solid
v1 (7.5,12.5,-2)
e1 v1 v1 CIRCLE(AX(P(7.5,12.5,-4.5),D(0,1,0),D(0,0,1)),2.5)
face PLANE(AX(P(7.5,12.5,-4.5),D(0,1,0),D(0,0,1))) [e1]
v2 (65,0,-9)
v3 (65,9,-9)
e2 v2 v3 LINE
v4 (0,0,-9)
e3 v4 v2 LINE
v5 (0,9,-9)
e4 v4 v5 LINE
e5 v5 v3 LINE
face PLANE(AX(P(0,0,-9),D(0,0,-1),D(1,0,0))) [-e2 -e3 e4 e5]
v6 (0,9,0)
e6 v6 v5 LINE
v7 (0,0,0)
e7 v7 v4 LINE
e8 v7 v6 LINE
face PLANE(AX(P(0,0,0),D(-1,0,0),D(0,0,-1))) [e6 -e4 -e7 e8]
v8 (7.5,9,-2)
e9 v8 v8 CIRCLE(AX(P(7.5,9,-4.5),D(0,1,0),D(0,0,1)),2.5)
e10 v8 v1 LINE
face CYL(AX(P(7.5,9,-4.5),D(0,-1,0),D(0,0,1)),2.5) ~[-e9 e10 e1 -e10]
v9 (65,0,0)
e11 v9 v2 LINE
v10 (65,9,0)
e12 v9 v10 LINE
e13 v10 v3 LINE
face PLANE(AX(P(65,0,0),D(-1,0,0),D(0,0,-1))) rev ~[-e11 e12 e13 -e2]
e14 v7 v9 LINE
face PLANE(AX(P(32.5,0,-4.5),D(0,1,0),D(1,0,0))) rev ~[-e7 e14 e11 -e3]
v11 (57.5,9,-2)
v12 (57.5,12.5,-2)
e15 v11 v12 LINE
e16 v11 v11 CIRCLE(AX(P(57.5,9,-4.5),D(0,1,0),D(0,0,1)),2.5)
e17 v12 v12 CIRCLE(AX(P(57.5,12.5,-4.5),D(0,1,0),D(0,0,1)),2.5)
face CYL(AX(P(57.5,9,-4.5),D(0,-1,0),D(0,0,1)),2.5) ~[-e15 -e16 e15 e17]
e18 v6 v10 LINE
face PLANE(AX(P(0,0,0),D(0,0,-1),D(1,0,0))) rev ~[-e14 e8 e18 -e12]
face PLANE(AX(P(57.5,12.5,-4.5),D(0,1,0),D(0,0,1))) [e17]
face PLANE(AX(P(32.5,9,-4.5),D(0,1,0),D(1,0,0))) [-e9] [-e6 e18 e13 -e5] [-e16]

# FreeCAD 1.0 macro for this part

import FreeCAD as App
import Part
import Sketcher

V = App.Vector


def add_polygon(sketch, points):
    """Adds a closed chain of lines whose ends are joined by coincident constraints."""
    first, n = sketch.GeometryCount, len(points)
    for a, b in zip(points, points[1:] + points[:1]):
        sketch.addGeometry(Part.LineSegment(App.Vector(*a, 0), App.Vector(*b, 0)), False)
    for i in range(n):
        sketch.addConstraint(Sketcher.Constraint("Coincident", first + i, 2, first + (i + 1) % n, 1))

doc = App.newDocument("Part")
body = doc.addObject("PartDesign::Body", "Body")

# Sketch on XZ plane
sketch1 = body.newObject("Sketcher::SketchObject", "Sketch")
sketch1.AttachmentSupport = (doc.getObject("XZ_Plane"), [""])
sketch1.MapMode = "FlatFace"
add_polygon(sketch1, [(0, -9), (0, 0), (65, 0), (65, -9)])  # lines 0-3
sketch1.addConstraint(Sketcher.Constraint("Vertical", 0))
sketch1.addConstraint(Sketcher.Constraint("Horizontal", 1))
sketch1.addConstraint(Sketcher.Constraint("Vertical", 2))
sketch1.addConstraint(Sketcher.Constraint("Horizontal", 3))
sketch1.addConstraint(Sketcher.Constraint("Coincident", 0, 2, -1, 1))
sketch1.addConstraint(Sketcher.Constraint("DistanceX", 1, 1, 1, 2, 65.0))
sketch1.addConstraint(Sketcher.Constraint("DistanceY", 0, 1, 0, 2, 9.0))
pad1 = body.newObject("PartDesign::Pad", "Pad")
pad1.Profile = sketch1
pad1.Length = 9
pad1.Reversed = True

# Sketch on XZ plane
sketch2 = body.newObject("Sketcher::SketchObject", "Sketch001")
sketch2.AttachmentSupport = (doc.getObject("XZ_Plane"), [""])
sketch2.MapMode = "FlatFace"
sketch2.AttachmentOffset = App.Placement(V(0, 0, -9), App.Rotation())
sketch2.addGeometry(Part.Circle(V(7.5, -4.5, 0), V(0, 0, 1), 2.5), False)
sketch2.addGeometry(Part.Circle(V(57.5, -4.5, 0), V(0, 0, 1), 2.5), False)
sketch2.addConstraint(Sketcher.Constraint("Equal", 0, 1))
sketch2.addConstraint(Sketcher.Constraint("Horizontal", 0, 3, 1, 3))
sketch2.addConstraint(Sketcher.Constraint("Diameter", 0, 5.0))
sketch2.addConstraint(Sketcher.Constraint("DistanceX", 0, 3, 1, 3, 50.0))
sketch2.addConstraint(Sketcher.Constraint("DistanceX", -1, 1, 0, 3, 7.5))
sketch2.addConstraint(Sketcher.Constraint("DistanceY", 0, 3, -1, 1, 4.5))
pad2 = body.newObject("PartDesign::Pad", "Pad001")
pad2.Profile = sketch2
pad2.Length = 3.5
pad2.Reversed = True

doc.recompute()
